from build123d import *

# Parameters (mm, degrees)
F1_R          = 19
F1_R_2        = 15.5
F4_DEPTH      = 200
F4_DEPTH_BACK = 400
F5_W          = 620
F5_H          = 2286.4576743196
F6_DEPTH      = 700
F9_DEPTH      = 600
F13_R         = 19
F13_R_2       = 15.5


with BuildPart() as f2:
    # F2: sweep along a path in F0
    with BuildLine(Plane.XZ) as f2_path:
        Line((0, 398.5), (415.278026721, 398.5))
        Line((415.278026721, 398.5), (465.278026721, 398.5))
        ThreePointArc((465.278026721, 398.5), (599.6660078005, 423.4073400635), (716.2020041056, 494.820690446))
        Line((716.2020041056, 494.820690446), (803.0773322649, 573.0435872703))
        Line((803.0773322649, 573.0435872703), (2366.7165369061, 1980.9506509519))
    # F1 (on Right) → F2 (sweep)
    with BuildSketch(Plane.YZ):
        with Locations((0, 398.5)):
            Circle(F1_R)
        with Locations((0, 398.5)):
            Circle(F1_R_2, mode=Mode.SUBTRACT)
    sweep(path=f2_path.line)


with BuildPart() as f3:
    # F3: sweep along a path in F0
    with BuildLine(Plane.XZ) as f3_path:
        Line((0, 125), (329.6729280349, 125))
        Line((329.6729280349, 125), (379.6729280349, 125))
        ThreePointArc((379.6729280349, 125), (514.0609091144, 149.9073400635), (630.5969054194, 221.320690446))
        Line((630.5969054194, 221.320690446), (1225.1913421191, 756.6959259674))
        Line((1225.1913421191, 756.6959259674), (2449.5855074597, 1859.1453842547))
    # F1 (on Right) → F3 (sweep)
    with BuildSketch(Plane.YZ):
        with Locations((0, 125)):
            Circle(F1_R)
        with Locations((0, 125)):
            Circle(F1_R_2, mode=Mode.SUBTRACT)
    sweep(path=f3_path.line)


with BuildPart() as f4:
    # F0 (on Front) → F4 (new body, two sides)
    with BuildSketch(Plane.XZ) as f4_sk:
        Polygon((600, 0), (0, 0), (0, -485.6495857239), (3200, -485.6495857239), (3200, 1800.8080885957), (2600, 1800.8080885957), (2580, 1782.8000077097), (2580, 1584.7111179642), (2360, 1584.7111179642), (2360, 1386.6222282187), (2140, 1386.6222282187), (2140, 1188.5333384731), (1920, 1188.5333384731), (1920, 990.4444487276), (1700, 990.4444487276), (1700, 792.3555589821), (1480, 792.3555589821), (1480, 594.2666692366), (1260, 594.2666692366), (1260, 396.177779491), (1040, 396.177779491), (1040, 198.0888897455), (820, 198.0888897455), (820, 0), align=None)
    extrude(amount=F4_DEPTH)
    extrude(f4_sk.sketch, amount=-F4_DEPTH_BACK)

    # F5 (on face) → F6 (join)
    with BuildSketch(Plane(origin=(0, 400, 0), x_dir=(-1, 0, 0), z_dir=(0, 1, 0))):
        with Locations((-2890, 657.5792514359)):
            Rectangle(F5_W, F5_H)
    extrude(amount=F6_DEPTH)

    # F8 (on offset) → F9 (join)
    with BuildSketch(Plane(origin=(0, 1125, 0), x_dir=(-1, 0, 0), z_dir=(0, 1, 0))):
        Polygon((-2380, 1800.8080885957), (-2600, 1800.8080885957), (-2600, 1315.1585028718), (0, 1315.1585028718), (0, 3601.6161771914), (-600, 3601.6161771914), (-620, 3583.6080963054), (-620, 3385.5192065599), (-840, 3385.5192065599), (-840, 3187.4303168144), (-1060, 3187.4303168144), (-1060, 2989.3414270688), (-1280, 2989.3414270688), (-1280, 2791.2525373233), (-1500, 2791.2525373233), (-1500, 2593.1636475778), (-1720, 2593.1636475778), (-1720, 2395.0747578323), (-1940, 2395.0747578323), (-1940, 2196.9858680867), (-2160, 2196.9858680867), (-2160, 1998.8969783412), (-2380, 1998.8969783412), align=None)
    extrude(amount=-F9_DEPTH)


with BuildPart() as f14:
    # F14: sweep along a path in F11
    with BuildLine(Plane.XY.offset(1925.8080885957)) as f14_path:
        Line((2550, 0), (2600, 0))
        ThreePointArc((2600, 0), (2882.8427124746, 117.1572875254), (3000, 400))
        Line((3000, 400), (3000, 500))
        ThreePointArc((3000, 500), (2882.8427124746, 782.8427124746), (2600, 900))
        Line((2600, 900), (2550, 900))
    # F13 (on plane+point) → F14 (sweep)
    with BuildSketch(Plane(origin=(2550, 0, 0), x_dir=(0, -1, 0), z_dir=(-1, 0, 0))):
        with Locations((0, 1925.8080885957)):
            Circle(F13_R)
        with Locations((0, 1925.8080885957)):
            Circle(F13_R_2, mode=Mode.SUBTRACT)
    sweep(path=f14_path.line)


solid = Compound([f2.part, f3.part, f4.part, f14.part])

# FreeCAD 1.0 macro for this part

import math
import FreeCAD as App
import Part
import Sketcher
from FreeCAD import Vector
Q = App.Units.Quantity

doc = App.newDocument("Part")
params = doc.addObject("Spreadsheet::Sheet", "Params")
for row, (alias, value) in enumerate([
    ("sketch1_diameter", "38 mm"),
    ("sketch1_diameter2", "31 mm"),
    ("sketch2_radius", "375 mm"),
    ("sketch3_diameter", "38 mm"),
    ("sketch3_diameter2", "31 mm"),
    ("sketch4_radius", "375 mm"),
    ("sketch5_width", "3200 mm"),
    ("sketch5_width2", "600 mm"),
    ("sketch5_width3", "220 mm"),
    ("sketch5_width4", "820 mm"),
    ("pad1_length", "200 mm"),
    ("pad1_length2", "400 mm"),
    ("sketch6_width", "620 mm"),
    ("pad2_length", "700 mm"),
    ("sketch7_width", "220 mm"),
    ("sketch7_width2", "2600 mm"),
    ("sketch7_width3", "600 mm"),
    ("pad3_length", "600 mm"),
    ("sketch8_diameter", "38 mm"),
    ("sketch8_diameter2", "31 mm"),
    ("sketch9_radius", "400 mm"),
    ("sketch9_width", "50 mm"),
    ("sketch9_height", "100 mm"),
], start=1):
    params.set(f"A{row}", alias)
    params.set(f"B{row}", "=" + value)
    params.setAlias(f"B{row}", alias)

body = doc.addObject("PartDesign::Body", "Body")

# Sketch on YZ plane
sketch1 = body.newObject("Sketcher::SketchObject", "Sketch")
sketch1.AttachmentSupport = (doc.getObject("YZ_Plane"), [""])
sketch1.MapMode = "FlatFace"
sketch1.addGeometry(Part.Circle(Vector(0, 398, 0), Vector(0, 0, 1), 19), False)
sketch1.addGeometry(Part.Circle(Vector(0, 398, 0), Vector(0, 0, 1), 16), False)
sketch1.addConstraint(Sketcher.Constraint("Coincident", 1, 3, 0, 3))
sketch1.addConstraint(Sketcher.Constraint("PointOnObject", 0, 3, -2))
sketch1.addConstraint(Sketcher.Constraint("Diameter", 0, 38.0))
sketch1.addConstraint(Sketcher.Constraint("Diameter", 1, 31.0))
sketch1.addConstraint(Sketcher.Constraint("DistanceY", -1, 1, 0, 3, 398.5))
sketch1.setExpression("Constraints[2]", "Params.sketch1_diameter")
sketch1.setExpression("Constraints[3]", "Params.sketch1_diameter2")

# Sketch on XZ plane
sketch2 = body.newObject("Sketcher::SketchObject", "Sketch001")
sketch2.AttachmentSupport = (doc.getObject("XZ_Plane"), [""])
sketch2.MapMode = "FlatFace"
sketch2.addGeometry(Part.LineSegment(Vector(0, 398, 0), Vector(465, 398, 0)), False)
sketch2.addGeometry(Part.ArcOfCircle(Part.Circle(Vector(465, 773, 0), Vector(0, 0, 1), 375), math.radians(-90), math.radians(-48)), False)
sketch2.addGeometry(Part.LineSegment(Vector(716, 495, 0), Vector(2367, 1981, 0)), False)
sketch2.addConstraint(Sketcher.Constraint("Tangent", 0, 2, 1, 1))
sketch2.addConstraint(Sketcher.Constraint("Tangent", 1, 2, 2, 1))
sketch2.addConstraint(Sketcher.Constraint("Horizontal", 0))
sketch2.addConstraint(Sketcher.Constraint("PointOnObject", 0, 1, -2))
sketch2.addConstraint(Sketcher.Constraint("Radius", 1, 375.0))
sketch2.addConstraint(Sketcher.Constraint("Angle", 2, Q("42 deg")))
sketch2.addConstraint(Sketcher.Constraint("DistanceY", -1, 1, 1, 3, 773.5))
sketch2.addConstraint(Sketcher.Constraint("DistanceX", 0, 1, 0, 2, 465.278027))
sketch2.addConstraint(Sketcher.Constraint("DistanceY", -1, 1, 2, 2, 1980.950651))
sketch2.setExpression("Constraints[4]", "Params.sketch2_radius")
doc.recompute()

additivepipe = body.newObject("PartDesign::AdditivePipe", "AdditivePipe")
additivepipe.Profile = sketch1
additivepipe.Spine = (sketch2, ["Edge1", "Edge2", "Edge3"])
body2 = doc.addObject("PartDesign::Body", "Body001")

# Sketch on YZ plane
sketch3 = body2.newObject("Sketcher::SketchObject", "Sketch002")
sketch3.AttachmentSupport = (doc.getObject("YZ_Plane001"), [""])
sketch3.MapMode = "FlatFace"
sketch3.addGeometry(Part.Circle(Vector(0, 125, 0), Vector(0, 0, 1), 19), False)
sketch3.addGeometry(Part.Circle(Vector(0, 125, 0), Vector(0, 0, 1), 16), False)
sketch3.addConstraint(Sketcher.Constraint("Coincident", 1, 3, 0, 3))
sketch3.addConstraint(Sketcher.Constraint("PointOnObject", 0, 3, -2))
sketch3.addConstraint(Sketcher.Constraint("Diameter", 0, 38.0))
sketch3.addConstraint(Sketcher.Constraint("Diameter", 1, 31.0))
sketch3.addConstraint(Sketcher.Constraint("DistanceY", -1, 1, 0, 3, 125.0))
sketch3.setExpression("Constraints[2]", "Params.sketch3_diameter")
sketch3.setExpression("Constraints[3]", "Params.sketch3_diameter2")

# Sketch on XZ plane
sketch4 = body2.newObject("Sketcher::SketchObject", "Sketch003")
sketch4.AttachmentSupport = (doc.getObject("XZ_Plane001"), [""])
sketch4.MapMode = "FlatFace"
sketch4.addGeometry(Part.LineSegment(Vector(0, 125, 0), Vector(380, 125, 0)), False)
sketch4.addGeometry(Part.ArcOfCircle(Part.Circle(Vector(380, 500, 0), Vector(0, 0, 1), 375), math.radians(-90), math.radians(-48)), False)
sketch4.addGeometry(Part.LineSegment(Vector(631, 221, 0), Vector(2450, 1859, 0)), False)
sketch4.addConstraint(Sketcher.Constraint("Tangent", 0, 2, 1, 1))
sketch4.addConstraint(Sketcher.Constraint("Tangent", 1, 2, 2, 1))
sketch4.addConstraint(Sketcher.Constraint("Horizontal", 0))
sketch4.addConstraint(Sketcher.Constraint("PointOnObject", 0, 1, -2))
sketch4.addConstraint(Sketcher.Constraint("Radius", 1, 375.0))
sketch4.addConstraint(Sketcher.Constraint("Angle", 2, Q("42 deg")))
sketch4.addConstraint(Sketcher.Constraint("DistanceY", -1, 1, 1, 3, 500.0))
sketch4.addConstraint(Sketcher.Constraint("DistanceX", 0, 1, 0, 2, 379.672928))
sketch4.addConstraint(Sketcher.Constraint("DistanceX", 1, 3, 2, 2, 2069.912579))
sketch4.setExpression("Constraints[4]", "Params.sketch4_radius")
doc.recompute()

additivepipe2 = body2.newObject("PartDesign::AdditivePipe", "AdditivePipe001")
additivepipe2.Profile = sketch3
additivepipe2.Spine = (sketch4, ["Edge1", "Edge2", "Edge3"])
body3 = doc.addObject("PartDesign::Body", "Body002")

# Sketch on XZ plane
sketch5 = body3.newObject("Sketcher::SketchObject", "Sketch004")
sketch5.AttachmentSupport = (doc.getObject("XZ_Plane002"), [""])
sketch5.MapMode = "FlatFace"
sketch5.addGeometry(Part.LineSegment(Vector(0, 0, 0), Vector(0, -486, 0)), False)
sketch5.addGeometry(Part.LineSegment(Vector(0, -486, 0), Vector(3200, -486, 0)), False)
sketch5.addGeometry(Part.LineSegment(Vector(3200, -486, 0), Vector(3200, 1801, 0)), False)
sketch5.addGeometry(Part.LineSegment(Vector(3200, 1801, 0), Vector(2600, 1801, 0)), False)
sketch5.addGeometry(Part.LineSegment(Vector(2600, 1801, 0), Vector(2580, 1783, 0)), False)
sketch5.addGeometry(Part.LineSegment(Vector(2580, 1783, 0), Vector(2580, 1585, 0)), False)
sketch5.addGeometry(Part.LineSegment(Vector(2580, 1585, 0), Vector(2360, 1585, 0)), False)
sketch5.addGeometry(Part.LineSegment(Vector(2360, 1585, 0), Vector(2360, 1387, 0)), False)
sketch5.addGeometry(Part.LineSegment(Vector(2360, 1387, 0), Vector(2140, 1387, 0)), False)
sketch5.addGeometry(Part.LineSegment(Vector(2140, 1387, 0), Vector(2140, 1189, 0)), False)
sketch5.addGeometry(Part.LineSegment(Vector(2140, 1189, 0), Vector(1920, 1189, 0)), False)
sketch5.addGeometry(Part.LineSegment(Vector(1920, 1189, 0), Vector(1920, 990, 0)), False)
sketch5.addGeometry(Part.LineSegment(Vector(1920, 990, 0), Vector(1700, 990, 0)), False)
sketch5.addGeometry(Part.LineSegment(Vector(1700, 990, 0), Vector(1700, 792, 0)), False)
sketch5.addGeometry(Part.LineSegment(Vector(1700, 792, 0), Vector(1480, 792, 0)), False)
sketch5.addGeometry(Part.LineSegment(Vector(1480, 792, 0), Vector(1480, 594, 0)), False)
sketch5.addGeometry(Part.LineSegment(Vector(1480, 594, 0), Vector(1260, 594, 0)), False)
sketch5.addGeometry(Part.LineSegment(Vector(1260, 594, 0), Vector(1260, 396, 0)), False)
sketch5.addGeometry(Part.LineSegment(Vector(1260, 396, 0), Vector(1040, 396, 0)), False)
sketch5.addGeometry(Part.LineSegment(Vector(1040, 396, 0), Vector(1040, 198, 0)), False)
sketch5.addGeometry(Part.LineSegment(Vector(1040, 198, 0), Vector(820, 198, 0)), False)
sketch5.addGeometry(Part.LineSegment(Vector(820, 198, 0), Vector(820, 0, 0)), False)
sketch5.addGeometry(Part.LineSegment(Vector(820, 0, 0), Vector(0, 0, 0)), False)
sketch5.addConstraint(Sketcher.Constraint("Coincident", 0, 2, 1, 1))
sketch5.addConstraint(Sketcher.Constraint("Coincident", 1, 2, 2, 1))
sketch5.addConstraint(Sketcher.Constraint("Coincident", 2, 2, 3, 1))
sketch5.addConstraint(Sketcher.Constraint("Coincident", 3, 2, 4, 1))
sketch5.addConstraint(Sketcher.Constraint("Coincident", 4, 2, 5, 1))
sketch5.addConstraint(Sketcher.Constraint("Coincident", 5, 2, 6, 1))
sketch5.addConstraint(Sketcher.Constraint("Coincident", 6, 2, 7, 1))
sketch5.addConstraint(Sketcher.Constraint("Coincident", 7, 2, 8, 1))
sketch5.addConstraint(Sketcher.Constraint("Coincident", 8, 2, 9, 1))
sketch5.addConstraint(Sketcher.Constraint("Coincident", 9, 2, 10, 1))
sketch5.addConstraint(Sketcher.Constraint("Coincident", 10, 2, 11, 1))
sketch5.addConstraint(Sketcher.Constraint("Coincident", 11, 2, 12, 1))
sketch5.addConstraint(Sketcher.Constraint("Coincident", 12, 2, 13, 1))
sketch5.addConstraint(Sketcher.Constraint("Coincident", 13, 2, 14, 1))
sketch5.addConstraint(Sketcher.Constraint("Coincident", 14, 2, 15, 1))
sketch5.addConstraint(Sketcher.Constraint("Coincident", 15, 2, 16, 1))
sketch5.addConstraint(Sketcher.Constraint("Coincident", 16, 2, 17, 1))
sketch5.addConstraint(Sketcher.Constraint("Coincident", 17, 2, 18, 1))
sketch5.addConstraint(Sketcher.Constraint("Coincident", 18, 2, 19, 1))
sketch5.addConstraint(Sketcher.Constraint("Coincident", 19, 2, 20, 1))
sketch5.addConstraint(Sketcher.Constraint("Coincident", 20, 2, 21, 1))
sketch5.addConstraint(Sketcher.Constraint("Coincident", 21, 2, 22, 1))
sketch5.addConstraint(Sketcher.Constraint("Coincident", 22, 2, 0, 1))
sketch5.addConstraint(Sketcher.Constraint("Vertical", 0))
sketch5.addConstraint(Sketcher.Constraint("Horizontal", 1))
sketch5.addConstraint(Sketcher.Constraint("Vertical", 2))
sketch5.addConstraint(Sketcher.Constraint("Horizontal", 3))
sketch5.addConstraint(Sketcher.Constraint("Vertical", 5))
sketch5.addConstraint(Sketcher.Constraint("Horizontal", 6))
sketch5.addConstraint(Sketcher.Constraint("Vertical", 7))
sketch5.addConstraint(Sketcher.Constraint("Horizontal", 8))
sketch5.addConstraint(Sketcher.Constraint("Vertical", 9))
sketch5.addConstraint(Sketcher.Constraint("Horizontal", 10))
sketch5.addConstraint(Sketcher.Constraint("Vertical", 11))
sketch5.addConstraint(Sketcher.Constraint("Horizontal", 12))
sketch5.addConstraint(Sketcher.Constraint("Vertical", 13))
sketch5.addConstraint(Sketcher.Constraint("Horizontal", 14))
sketch5.addConstraint(Sketcher.Constraint("Vertical", 15))
sketch5.addConstraint(Sketcher.Constraint("Horizontal", 16))
sketch5.addConstraint(Sketcher.Constraint("Vertical", 17))
sketch5.addConstraint(Sketcher.Constraint("Horizontal", 18))
sketch5.addConstraint(Sketcher.Constraint("Vertical", 19))
sketch5.addConstraint(Sketcher.Constraint("Horizontal", 20))
sketch5.addConstraint(Sketcher.Constraint("Vertical", 21))
sketch5.addConstraint(Sketcher.Constraint("Horizontal", 22))
sketch5.addConstraint(Sketcher.Constraint("Coincident", 22, 2, -1, 1))
sketch5.addConstraint(Sketcher.Constraint("Equal", 6, 8))
sketch5.addConstraint(Sketcher.Constraint("Equal", 8, 10))
sketch5.addConstraint(Sketcher.Constraint("Equal", 10, 12))
sketch5.addConstraint(Sketcher.Constraint("Equal", 12, 14))
sketch5.addConstraint(Sketcher.Constraint("Equal", 14, 16))
sketch5.addConstraint(Sketcher.Constraint("Equal", 16, 18))
sketch5.addConstraint(Sketcher.Constraint("Equal", 18, 20))
sketch5.addConstraint(Sketcher.Constraint("Equal", 5, 7))
sketch5.addConstraint(Sketcher.Constraint("Equal", 7, 9))
sketch5.addConstraint(Sketcher.Constraint("Equal", 9, 11))
sketch5.addConstraint(Sketcher.Constraint("Equal", 11, 13))
sketch5.addConstraint(Sketcher.Constraint("Equal", 13, 15))
sketch5.addConstraint(Sketcher.Constraint("Equal", 15, 17))
sketch5.addConstraint(Sketcher.Constraint("Equal", 17, 19))
sketch5.addConstraint(Sketcher.Constraint("Equal", 19, 21))
sketch5.addConstraint(Sketcher.Constraint("DistanceX", 1, 1, 1, 2, 3200.0))
sketch5.addConstraint(Sketcher.Constraint("DistanceX", 3, 2, 3, 1, 600.0))
sketch5.addConstraint(Sketcher.Constraint("DistanceX", 6, 2, 6, 1, 220.0))
sketch5.addConstraint(Sketcher.Constraint("DistanceX", 22, 2, 22, 1, 820.0))
sketch5.addConstraint(Sketcher.Constraint("Angle", 4, Q("-138 deg")))
sketch5.addConstraint(Sketcher.Constraint("DistanceY", 5, 2, 5, 1, 198.08889))
sketch5.addConstraint(Sketcher.Constraint("DistanceY", 0, 2, 0, 1, 485.649586))
sketch5.setExpression("Constraints[61]", "Params.sketch5_width")
sketch5.setExpression("Constraints[62]", "Params.sketch5_width2")
sketch5.setExpression("Constraints[63]", "Params.sketch5_width3")
sketch5.setExpression("Constraints[64]", "Params.sketch5_width4")
pad1 = body3.newObject("PartDesign::Pad", "Pad")
pad1.Profile = sketch5
pad1.Type = "TwoLengths"
pad1.setExpression("Length", "Params.pad1_length")
pad1.setExpression("Length2", "Params.pad1_length2")

# Sketch on XZ plane
sketch6 = body3.newObject("Sketcher::SketchObject", "Sketch005")
sketch6.AttachmentSupport = (doc.getObject("XZ_Plane002"), [""])
sketch6.MapMode = "FlatFace"
sketch6.AttachmentOffset = App.Placement(Vector(0, 0, -400), App.Rotation())
sketch6.addGeometry(Part.LineSegment(Vector(3200, 1801, 0), Vector(3200, -486, 0)), False)
sketch6.addGeometry(Part.LineSegment(Vector(3200, -486, 0), Vector(2580, -486, 0)), False)
sketch6.addGeometry(Part.LineSegment(Vector(2580, -486, 0), Vector(2580, 1801, 0)), False)
sketch6.addGeometry(Part.LineSegment(Vector(2580, 1801, 0), Vector(3200, 1801, 0)), False)
sketch6.addConstraint(Sketcher.Constraint("Coincident", 0, 2, 1, 1))
sketch6.addConstraint(Sketcher.Constraint("Coincident", 1, 2, 2, 1))
sketch6.addConstraint(Sketcher.Constraint("Coincident", 2, 2, 3, 1))
sketch6.addConstraint(Sketcher.Constraint("Coincident", 3, 2, 0, 1))
sketch6.addConstraint(Sketcher.Constraint("Vertical", 0))
sketch6.addConstraint(Sketcher.Constraint("Horizontal", 1))
sketch6.addConstraint(Sketcher.Constraint("Vertical", 2))
sketch6.addConstraint(Sketcher.Constraint("Horizontal", 3))
sketch6.addConstraint(Sketcher.Constraint("DistanceX", 1, 2, 1, 1, 620.0))
sketch6.addConstraint(Sketcher.Constraint("DistanceX", -1, 1, 0, 2, 3200.0))
sketch6.addConstraint(Sketcher.Constraint("DistanceY", 0, 2, 0, 1, 2286.457674))
sketch6.addConstraint(Sketcher.Constraint("DistanceY", -1, 1, 2, 2, 1800.808089))
sketch6.setExpression("Constraints[8]", "Params.sketch6_width")
pad2 = body3.newObject("PartDesign::Pad", "Pad001")
pad2.Profile = sketch6
pad2.setExpression("Length", "Params.pad2_length")
pad2.Reversed = True

# Sketch on XZ plane
sketch7 = body3.newObject("Sketcher::SketchObject", "Sketch006")
sketch7.AttachmentSupport = (doc.getObject("XZ_Plane002"), [""])
sketch7.MapMode = "FlatFace"
sketch7.AttachmentOffset = App.Placement(Vector(0, 0, -1125), App.Rotation())
sketch7.addGeometry(Part.LineSegment(Vector(2380, 1801, 0), Vector(2600, 1801, 0)), False)
sketch7.addGeometry(Part.LineSegment(Vector(2600, 1801, 0), Vector(2600, 1315, 0)), False)
sketch7.addGeometry(Part.LineSegment(Vector(2600, 1315, 0), Vector(0, 1315, 0)), False)
sketch7.addGeometry(Part.LineSegment(Vector(0, 1315, 0), Vector(0, 3602, 0)), False)
sketch7.addGeometry(Part.LineSegment(Vector(0, 3602, 0), Vector(600, 3602, 0)), False)
sketch7.addGeometry(Part.LineSegment(Vector(600, 3602, 0), Vector(620, 3584, 0)), False)
sketch7.addGeometry(Part.LineSegment(Vector(620, 3584, 0), Vector(620, 3386, 0)), False)
sketch7.addGeometry(Part.LineSegment(Vector(620, 3386, 0), Vector(840, 3386, 0)), False)
sketch7.addGeometry(Part.LineSegment(Vector(840, 3386, 0), Vector(840, 3187, 0)), False)
sketch7.addGeometry(Part.LineSegment(Vector(840, 3187, 0), Vector(1060, 3187, 0)), False)
sketch7.addGeometry(Part.LineSegment(Vector(1060, 3187, 0), Vector(1060, 2989, 0)), False)
sketch7.addGeometry(Part.LineSegment(Vector(1060, 2989, 0), Vector(1280, 2989, 0)), False)
sketch7.addGeometry(Part.LineSegment(Vector(1280, 2989, 0), Vector(1280, 2791, 0)), False)
sketch7.addGeometry(Part.LineSegment(Vector(1280, 2791, 0), Vector(1500, 2791, 0)), False)
sketch7.addGeometry(Part.LineSegment(Vector(1500, 2791, 0), Vector(1500, 2593, 0)), False)
sketch7.addGeometry(Part.LineSegment(Vector(1500, 2593, 0), Vector(1720, 2593, 0)), False)
sketch7.addGeometry(Part.LineSegment(Vector(1720, 2593, 0), Vector(1720, 2395, 0)), False)
sketch7.addGeometry(Part.LineSegment(Vector(1720, 2395, 0), Vector(1940, 2395, 0)), False)
sketch7.addGeometry(Part.LineSegment(Vector(1940, 2395, 0), Vector(1940, 2197, 0)), False)
sketch7.addGeometry(Part.LineSegment(Vector(1940, 2197, 0), Vector(2160, 2197, 0)), False)
sketch7.addGeometry(Part.LineSegment(Vector(2160, 2197, 0), Vector(2160, 1999, 0)), False)
sketch7.addGeometry(Part.LineSegment(Vector(2160, 1999, 0), Vector(2380, 1999, 0)), False)
sketch7.addGeometry(Part.LineSegment(Vector(2380, 1999, 0), Vector(2380, 1801, 0)), False)
sketch7.addConstraint(Sketcher.Constraint("Coincident", 0, 2, 1, 1))
sketch7.addConstraint(Sketcher.Constraint("Coincident", 1, 2, 2, 1))
sketch7.addConstraint(Sketcher.Constraint("Coincident", 2, 2, 3, 1))
sketch7.addConstraint(Sketcher.Constraint("Coincident", 3, 2, 4, 1))
sketch7.addConstraint(Sketcher.Constraint("Coincident", 4, 2, 5, 1))
sketch7.addConstraint(Sketcher.Constraint("Coincident", 5, 2, 6, 1))
sketch7.addConstraint(Sketcher.Constraint("Coincident", 6, 2, 7, 1))
sketch7.addConstraint(Sketcher.Constraint("Coincident", 7, 2, 8, 1))
sketch7.addConstraint(Sketcher.Constraint("Coincident", 8, 2, 9, 1))
sketch7.addConstraint(Sketcher.Constraint("Coincident", 9, 2, 10, 1))
sketch7.addConstraint(Sketcher.Constraint("Coincident", 10, 2, 11, 1))
sketch7.addConstraint(Sketcher.Constraint("Coincident", 11, 2, 12, 1))
sketch7.addConstraint(Sketcher.Constraint("Coincident", 12, 2, 13, 1))
sketch7.addConstraint(Sketcher.Constraint("Coincident", 13, 2, 14, 1))
sketch7.addConstraint(Sketcher.Constraint("Coincident", 14, 2, 15, 1))
sketch7.addConstraint(Sketcher.Constraint("Coincident", 15, 2, 16, 1))
sketch7.addConstraint(Sketcher.Constraint("Coincident", 16, 2, 17, 1))
sketch7.addConstraint(Sketcher.Constraint("Coincident", 17, 2, 18, 1))
sketch7.addConstraint(Sketcher.Constraint("Coincident", 18, 2, 19, 1))
sketch7.addConstraint(Sketcher.Constraint("Coincident", 19, 2, 20, 1))
sketch7.addConstraint(Sketcher.Constraint("Coincident", 20, 2, 21, 1))
sketch7.addConstraint(Sketcher.Constraint("Coincident", 21, 2, 22, 1))
sketch7.addConstraint(Sketcher.Constraint("Coincident", 22, 2, 0, 1))
sketch7.addConstraint(Sketcher.Constraint("Horizontal", 0))
sketch7.addConstraint(Sketcher.Constraint("Vertical", 1))
sketch7.addConstraint(Sketcher.Constraint("Horizontal", 2))
sketch7.addConstraint(Sketcher.Constraint("Vertical", 3))
sketch7.addConstraint(Sketcher.Constraint("Horizontal", 4))
sketch7.addConstraint(Sketcher.Constraint("Vertical", 6))
sketch7.addConstraint(Sketcher.Constraint("Horizontal", 7))
sketch7.addConstraint(Sketcher.Constraint("Vertical", 8))
sketch7.addConstraint(Sketcher.Constraint("Horizontal", 9))
sketch7.addConstraint(Sketcher.Constraint("Vertical", 10))
sketch7.addConstraint(Sketcher.Constraint("Horizontal", 11))
sketch7.addConstraint(Sketcher.Constraint("Vertical", 12))
sketch7.addConstraint(Sketcher.Constraint("Horizontal", 13))
sketch7.addConstraint(Sketcher.Constraint("Vertical", 14))
sketch7.addConstraint(Sketcher.Constraint("Horizontal", 15))
sketch7.addConstraint(Sketcher.Constraint("Vertical", 16))
sketch7.addConstraint(Sketcher.Constraint("Horizontal", 17))
sketch7.addConstraint(Sketcher.Constraint("Vertical", 18))
sketch7.addConstraint(Sketcher.Constraint("Horizontal", 19))
sketch7.addConstraint(Sketcher.Constraint("Vertical", 20))
sketch7.addConstraint(Sketcher.Constraint("Horizontal", 21))
sketch7.addConstraint(Sketcher.Constraint("Vertical", 22))
sketch7.addConstraint(Sketcher.Constraint("PointOnObject", 2, 2, -2))
sketch7.addConstraint(Sketcher.Constraint("Equal", 0, 7))
sketch7.addConstraint(Sketcher.Constraint("Equal", 7, 9))
sketch7.addConstraint(Sketcher.Constraint("Equal", 9, 11))
sketch7.addConstraint(Sketcher.Constraint("Equal", 11, 13))
sketch7.addConstraint(Sketcher.Constraint("Equal", 13, 15))
sketch7.addConstraint(Sketcher.Constraint("Equal", 15, 17))
sketch7.addConstraint(Sketcher.Constraint("Equal", 17, 19))
sketch7.addConstraint(Sketcher.Constraint("Equal", 19, 21))
sketch7.addConstraint(Sketcher.Constraint("Equal", 6, 8))
sketch7.addConstraint(Sketcher.Constraint("Equal", 8, 10))
sketch7.addConstraint(Sketcher.Constraint("Equal", 10, 12))
sketch7.addConstraint(Sketcher.Constraint("Equal", 12, 14))
sketch7.addConstraint(Sketcher.Constraint("Equal", 14, 16))
sketch7.addConstraint(Sketcher.Constraint("Equal", 16, 18))
sketch7.addConstraint(Sketcher.Constraint("Equal", 18, 20))
sketch7.addConstraint(Sketcher.Constraint("Equal", 20, 22))
sketch7.addConstraint(Sketcher.Constraint("DistanceX", 0, 1, 0, 2, 220.0))
sketch7.addConstraint(Sketcher.Constraint("DistanceX", 2, 2, 2, 1, 2600.0))
sketch7.addConstraint(Sketcher.Constraint("DistanceX", 4, 1, 4, 2, 600.0))
sketch7.addConstraint(Sketcher.Constraint("Angle", 5, Q("-42 deg")))
sketch7.addConstraint(Sketcher.Constraint("DistanceY", 6, 2, 6, 1, 198.08889))
sketch7.addConstraint(Sketcher.Constraint("DistanceY", 1, 2, 1, 1, 485.649586))
sketch7.addConstraint(Sketcher.Constraint("DistanceY", -1, 1, 0, 2, 1800.808089))
sketch7.setExpression("Constraints[62]", "Params.sketch7_width")
sketch7.setExpression("Constraints[63]", "Params.sketch7_width2")
sketch7.setExpression("Constraints[64]", "Params.sketch7_width3")
pad3 = body3.newObject("PartDesign::Pad", "Pad002")
pad3.Profile = sketch7
pad3.setExpression("Length", "Params.pad3_length")
body4 = doc.addObject("PartDesign::Body", "Body003")

# Sketch on YZ plane
sketch8 = body4.newObject("Sketcher::SketchObject", "Sketch007")
sketch8.AttachmentSupport = (doc.getObject("YZ_Plane003"), [""])
sketch8.MapMode = "FlatFace"
sketch8.AttachmentOffset = App.Placement(Vector(0, 0, 2550), App.Rotation())
sketch8.addGeometry(Part.Circle(Vector(0, 1926, 0), Vector(0, 0, 1), 19), False)
sketch8.addGeometry(Part.Circle(Vector(0, 1926, 0), Vector(0, 0, 1), 16), False)
sketch8.addConstraint(Sketcher.Constraint("Coincident", 1, 3, 0, 3))
sketch8.addConstraint(Sketcher.Constraint("PointOnObject", 0, 3, -2))
sketch8.addConstraint(Sketcher.Constraint("Diameter", 0, 38.0))
sketch8.addConstraint(Sketcher.Constraint("Diameter", 1, 31.0))
sketch8.addConstraint(Sketcher.Constraint("DistanceY", -1, 1, 0, 3, 1925.808089))
sketch8.setExpression("Constraints[2]", "Params.sketch8_diameter")
sketch8.setExpression("Constraints[3]", "Params.sketch8_diameter2")

# Sketch on XY plane
sketch9 = body4.newObject("Sketcher::SketchObject", "Sketch008")
sketch9.AttachmentSupport = (doc.getObject("XY_Plane003"), [""])
sketch9.MapMode = "FlatFace"
sketch9.AttachmentOffset = App.Placement(Vector(0, 0, 1925.808089), App.Rotation())
sketch9.addGeometry(Part.LineSegment(Vector(2550, 0, 0), Vector(2600, 0, 0)), False)
sketch9.addGeometry(Part.ArcOfCircle(Part.Circle(Vector(2600, 400, 0), Vector(0, 0, 1), 400), math.radians(-90), math.radians(0)), False)
sketch9.addGeometry(Part.LineSegment(Vector(3000, 400, 0), Vector(3000, 500, 0)), False)
sketch9.addGeometry(Part.ArcOfCircle(Part.Circle(Vector(2600, 500, 0), Vector(0, 0, 1), 400), math.radians(0), math.radians(90)), False)
sketch9.addGeometry(Part.LineSegment(Vector(2600, 900, 0), Vector(2550, 900, 0)), False)
sketch9.addConstraint(Sketcher.Constraint("Tangent", 0, 2, 1, 1))
sketch9.addConstraint(Sketcher.Constraint("Tangent", 1, 2, 2, 1))
sketch9.addConstraint(Sketcher.Constraint("Tangent", 2, 2, 3, 1))
sketch9.addConstraint(Sketcher.Constraint("Tangent", 3, 2, 4, 1))
sketch9.addConstraint(Sketcher.Constraint("Horizontal", 0))
sketch9.addConstraint(Sketcher.Constraint("Vertical", 2))
sketch9.addConstraint(Sketcher.Constraint("Horizontal", 4))
sketch9.addConstraint(Sketcher.Constraint("Equal", 1, 3))
sketch9.addConstraint(Sketcher.Constraint("PointOnObject", 0, 1, -1))
sketch9.addConstraint(Sketcher.Constraint("Vertical", 0, 1, 4, 2))
sketch9.addConstraint(Sketcher.Constraint("Radius", 1, 400.0))
sketch9.addConstraint(Sketcher.Constraint("DistanceX", 0, 1, 0, 2, 50.0))
sketch9.addConstraint(Sketcher.Constraint("DistanceY", 2, 1, 2, 2, 100.0))
sketch9.addConstraint(Sketcher.Constraint("DistanceX", -1, 1, 1, 3, 2600.0))
sketch9.setExpression("Constraints[10]", "Params.sketch9_radius")
sketch9.setExpression("Constraints[11]", "Params.sketch9_width")
sketch9.setExpression("Constraints[12]", "Params.sketch9_height")
doc.recompute()

additivepipe3 = body4.newObject("PartDesign::AdditivePipe", "AdditivePipe002")
additivepipe3.Profile = sketch8
additivepipe3.Spine = (sketch9, ["Edge1", "Edge2", "Edge3", "Edge4", "Edge5"])

doc.recompute()
